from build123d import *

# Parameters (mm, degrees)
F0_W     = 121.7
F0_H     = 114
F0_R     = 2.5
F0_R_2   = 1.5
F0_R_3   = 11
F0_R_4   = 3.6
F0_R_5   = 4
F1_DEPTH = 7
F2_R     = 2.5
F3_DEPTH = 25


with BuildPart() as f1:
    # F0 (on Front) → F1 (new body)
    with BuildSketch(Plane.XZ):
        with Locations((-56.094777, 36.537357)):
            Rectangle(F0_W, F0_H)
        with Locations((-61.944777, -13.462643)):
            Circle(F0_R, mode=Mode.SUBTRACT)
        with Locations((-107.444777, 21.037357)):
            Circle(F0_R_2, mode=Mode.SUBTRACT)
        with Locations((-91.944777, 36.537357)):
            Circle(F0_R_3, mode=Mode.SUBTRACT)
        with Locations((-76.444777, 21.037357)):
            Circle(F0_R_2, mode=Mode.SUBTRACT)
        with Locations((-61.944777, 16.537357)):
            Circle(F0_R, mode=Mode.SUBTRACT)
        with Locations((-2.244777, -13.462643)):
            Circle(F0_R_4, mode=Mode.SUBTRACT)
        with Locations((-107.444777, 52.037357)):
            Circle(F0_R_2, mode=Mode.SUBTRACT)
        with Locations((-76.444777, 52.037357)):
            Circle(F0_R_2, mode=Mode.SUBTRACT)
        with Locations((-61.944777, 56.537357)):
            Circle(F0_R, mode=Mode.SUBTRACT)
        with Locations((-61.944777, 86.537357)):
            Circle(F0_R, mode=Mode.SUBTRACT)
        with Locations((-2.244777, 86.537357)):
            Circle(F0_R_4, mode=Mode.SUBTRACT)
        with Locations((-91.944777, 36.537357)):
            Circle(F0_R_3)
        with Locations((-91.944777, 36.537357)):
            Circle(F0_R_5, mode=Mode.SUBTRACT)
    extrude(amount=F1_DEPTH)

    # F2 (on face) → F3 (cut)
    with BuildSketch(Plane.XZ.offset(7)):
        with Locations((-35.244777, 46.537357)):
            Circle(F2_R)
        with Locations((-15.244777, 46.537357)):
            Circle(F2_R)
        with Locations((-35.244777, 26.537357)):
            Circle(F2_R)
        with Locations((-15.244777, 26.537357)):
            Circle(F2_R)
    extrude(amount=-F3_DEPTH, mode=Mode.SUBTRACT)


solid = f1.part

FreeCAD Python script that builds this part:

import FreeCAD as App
import Part
import Sketcher
from FreeCAD import Vector
Q = App.Units.Quantity


def add_polygon(sketch, points):
    """Adds a closed chain of lines whose ends are joined by coincident constraints."""
    first, n = sketch.GeometryCount, len(points)
    for a, b in zip(points, points[1:] + points[:1]):
        sketch.addGeometry(Part.LineSegment(App.Vector(*a, 0), App.Vector(*b, 0)), False)
    for i in range(n):
        sketch.addConstraint(Sketcher.Constraint("Coincident", first + i, 2, first + (i + 1) % n, 1))

doc = App.newDocument("Part")
body = doc.addObject("PartDesign::Body", "Body")

# Sketch on XZ plane
sketch1 = doc.addObject("Sketcher::SketchObject", "Sketch")
body.addObject(sketch1)
sketch1.AttachmentSupport = (doc.XZ_Plane, [""])
sketch1.MapMode = "FlatFace"
add_polygon(sketch1, [(-116.9, 93.5), (-116.9, -20.5), (4.8, -20.5), (4.8, 93.5)])  # lines 0-3
sketch1.addGeometry(Part.Circle(Vector(-61.9, -13.5, 0), Vector(0, 0, 1), 2.5), False)  # 4
sketch1.addGeometry(Part.Circle(Vector(-107.4, 21, 0), Vector(0, 0, 1), 1.5), False)  # 5
sketch1.addGeometry(Part.Circle(Vector(-91.9, 36.5, 0), Vector(0, 0, 1), 4), False)  # 6
sketch1.addGeometry(Part.Circle(Vector(-76.4, 21, 0), Vector(0, 0, 1), 1.5), False)  # 7
sketch1.addGeometry(Part.Circle(Vector(-61.9, 16.5, 0), Vector(0, 0, 1), 2.5), False)  # 8
sketch1.addGeometry(Part.Circle(Vector(-2.2, -13.5, 0), Vector(0, 0, 1), 3.6), False)  # 9
sketch1.addGeometry(Part.Circle(Vector(-107.4, 52, 0), Vector(0, 0, 1), 1.5), False)  # 10
sketch1.addGeometry(Part.Circle(Vector(-76.4, 52, 0), Vector(0, 0, 1), 1.5), False)  # 11
sketch1.addGeometry(Part.Circle(Vector(-61.9, 56.5, 0), Vector(0, 0, 1), 2.5), False)  # 12
sketch1.addGeometry(Part.Circle(Vector(-61.9, 86.5, 0), Vector(0, 0, 1), 2.5), False)  # 13
sketch1.addGeometry(Part.Circle(Vector(-2.2, 86.5, 0), Vector(0, 0, 1), 3.6), False)  # 14
sketch1.addConstraint([
    Sketcher.Constraint("Vertical", 0),
    Sketcher.Constraint("Horizontal", 1),
    Sketcher.Constraint("Vertical", 2),
    Sketcher.Constraint("Horizontal", 3),
    Sketcher.Constraint("Equal", 5, 7),
    Sketcher.Constraint("Equal", 4, 8),
    Sketcher.Constraint("Equal", 7, 10),
    Sketcher.Constraint("Equal", 10, 11),
    Sketcher.Constraint("Equal", 8, 12),
    Sketcher.Constraint("Equal", 12, 13),
    Sketcher.Constraint("Equal", 9, 14),
    Sketcher.Constraint("Horizontal", 5, 3, 7, 3),
    Sketcher.Constraint("Horizontal", 4, 3, 9, 3),
    Sketcher.Constraint("Horizontal", 10, 3, 11, 3),
    Sketcher.Constraint("Horizontal", 13, 3, 14, 3),
    Sketcher.Constraint("Vertical", 4, 3, 8, 3),
    Sketcher.Constraint("Vertical", 5, 3, 10, 3),
    Sketcher.Constraint("Vertical", 7, 3, 11, 3),
    Sketcher.Constraint("Vertical", 8, 3, 12, 3),
    Sketcher.Constraint("Vertical", 12, 3, 13, 3),
    Sketcher.Constraint("Vertical", 9, 3, 14, 3),
    Sketcher.Constraint("Diameter", 4, Q("5 mm")),
    Sketcher.Constraint("Diameter", 5, Q("3 mm")),
    Sketcher.Constraint("Diameter", 6, Q("8 mm")),
    Sketcher.Constraint("Diameter", 9, Q("7.2 mm")),
    Sketcher.Constraint("DistanceY", 0, 2, 0, 1, Q("114 mm")),
    Sketcher.Constraint("DistanceX", 1, 1, 1, 2, Q("121.7 mm")),
    Sketcher.Constraint("DistanceX", 6, 3, 4, 3, Q("30 mm")),
    Sketcher.Constraint("DistanceY", 4, 3, 6, 3, Q("50 mm")),
    Sketcher.Constraint("DistanceX", 5, 3, 7, 3, Q("31 mm")),
    Sketcher.Constraint("DistanceY", 4, 3, 8, 3, Q("30 mm")),
    Sketcher.Constraint("DistanceY", 5, 3, 10, 3, Q("31 mm")),
    Sketcher.Constraint("DistanceY", 6, 3, 12, 3, Q("20 mm")),
    Sketcher.Constraint("DistanceY", 12, 3, 13, 3, Q("30 mm")),
    Sketcher.Constraint("DistanceX", 0, 2, 4, 3, Q("55 mm")),
    Sketcher.Constraint("DistanceY", 0, 2, 4, 3, Q("7 mm")),
    Sketcher.Constraint("DistanceX", 9, 3, 1, 2, Q("7 mm")),
    Sketcher.Constraint("DistanceX", 5, 3, 4, 3, Q("45.5 mm")),
    Sketcher.Constraint("DistanceY", 4, 3, 5, 3, Q("34.5 mm")),
    Sketcher.Constraint("DistanceX", 4, 3, -1, 1, Q("61.944777 mm")),
    Sketcher.Constraint("DistanceY", 4, 3, -1, 1, Q("13.462643 mm")),
])
pad1 = doc.addObject("PartDesign::Pad", "Pad")
body.addObject(pad1)
pad1.Profile = sketch1
pad1.Length = 7

# Sketch on XZ plane
sketch2 = doc.addObject("Sketcher::SketchObject", "Sketch001")
body.addObject(sketch2)
sketch2.AttachmentSupport = (doc.XZ_Plane, [""])
sketch2.MapMode = "FlatFace"
sketch2.AttachmentOffset = App.Placement(Vector(0, 0, 7), App.Rotation())
sketch2.addGeometry([
    Part.Circle(Vector(-35.2, 46.5, 0), Vector(0, 0, 1), 2.5),
    Part.Circle(Vector(-15.2, 46.5, 0), Vector(0, 0, 1), 2.5),
    Part.Circle(Vector(-35.2, 26.5, 0), Vector(0, 0, 1), 2.5),
    Part.Circle(Vector(-15.2, 26.5, 0), Vector(0, 0, 1), 2.5),
], False)
sketch2.addConstraint([
    Sketcher.Constraint("Equal", 0, 1),
    Sketcher.Constraint("Equal", 1, 2),
    Sketcher.Constraint("Equal", 2, 3),
    Sketcher.Constraint("Horizontal", 0, 3, 1, 3),
    Sketcher.Constraint("Horizontal", 2, 3, 3, 3),
    Sketcher.Constraint("Vertical", 0, 3, 2, 3),
    Sketcher.Constraint("Vertical", 1, 3, 3, 3),
    Sketcher.Constraint("Diameter", 0, Q("5 mm")),
    Sketcher.Constraint("DistanceX", 0, 3, 1, 3, Q("20 mm")),
    Sketcher.Constraint("DistanceY", 2, 3, 0, 3, Q("20 mm")),
    Sketcher.Constraint("DistanceX", 0, 3, -1, 1, Q("35.244777 mm")),
    Sketcher.Constraint("DistanceY", -1, 1, 0, 3, Q("46.537357 mm")),
])
pocket1 = doc.addObject("PartDesign::Pocket", "Pocket")
body.addObject(pocket1)
pocket1.Profile = sketch2
pocket1.Length = 25

doc.recompute()
